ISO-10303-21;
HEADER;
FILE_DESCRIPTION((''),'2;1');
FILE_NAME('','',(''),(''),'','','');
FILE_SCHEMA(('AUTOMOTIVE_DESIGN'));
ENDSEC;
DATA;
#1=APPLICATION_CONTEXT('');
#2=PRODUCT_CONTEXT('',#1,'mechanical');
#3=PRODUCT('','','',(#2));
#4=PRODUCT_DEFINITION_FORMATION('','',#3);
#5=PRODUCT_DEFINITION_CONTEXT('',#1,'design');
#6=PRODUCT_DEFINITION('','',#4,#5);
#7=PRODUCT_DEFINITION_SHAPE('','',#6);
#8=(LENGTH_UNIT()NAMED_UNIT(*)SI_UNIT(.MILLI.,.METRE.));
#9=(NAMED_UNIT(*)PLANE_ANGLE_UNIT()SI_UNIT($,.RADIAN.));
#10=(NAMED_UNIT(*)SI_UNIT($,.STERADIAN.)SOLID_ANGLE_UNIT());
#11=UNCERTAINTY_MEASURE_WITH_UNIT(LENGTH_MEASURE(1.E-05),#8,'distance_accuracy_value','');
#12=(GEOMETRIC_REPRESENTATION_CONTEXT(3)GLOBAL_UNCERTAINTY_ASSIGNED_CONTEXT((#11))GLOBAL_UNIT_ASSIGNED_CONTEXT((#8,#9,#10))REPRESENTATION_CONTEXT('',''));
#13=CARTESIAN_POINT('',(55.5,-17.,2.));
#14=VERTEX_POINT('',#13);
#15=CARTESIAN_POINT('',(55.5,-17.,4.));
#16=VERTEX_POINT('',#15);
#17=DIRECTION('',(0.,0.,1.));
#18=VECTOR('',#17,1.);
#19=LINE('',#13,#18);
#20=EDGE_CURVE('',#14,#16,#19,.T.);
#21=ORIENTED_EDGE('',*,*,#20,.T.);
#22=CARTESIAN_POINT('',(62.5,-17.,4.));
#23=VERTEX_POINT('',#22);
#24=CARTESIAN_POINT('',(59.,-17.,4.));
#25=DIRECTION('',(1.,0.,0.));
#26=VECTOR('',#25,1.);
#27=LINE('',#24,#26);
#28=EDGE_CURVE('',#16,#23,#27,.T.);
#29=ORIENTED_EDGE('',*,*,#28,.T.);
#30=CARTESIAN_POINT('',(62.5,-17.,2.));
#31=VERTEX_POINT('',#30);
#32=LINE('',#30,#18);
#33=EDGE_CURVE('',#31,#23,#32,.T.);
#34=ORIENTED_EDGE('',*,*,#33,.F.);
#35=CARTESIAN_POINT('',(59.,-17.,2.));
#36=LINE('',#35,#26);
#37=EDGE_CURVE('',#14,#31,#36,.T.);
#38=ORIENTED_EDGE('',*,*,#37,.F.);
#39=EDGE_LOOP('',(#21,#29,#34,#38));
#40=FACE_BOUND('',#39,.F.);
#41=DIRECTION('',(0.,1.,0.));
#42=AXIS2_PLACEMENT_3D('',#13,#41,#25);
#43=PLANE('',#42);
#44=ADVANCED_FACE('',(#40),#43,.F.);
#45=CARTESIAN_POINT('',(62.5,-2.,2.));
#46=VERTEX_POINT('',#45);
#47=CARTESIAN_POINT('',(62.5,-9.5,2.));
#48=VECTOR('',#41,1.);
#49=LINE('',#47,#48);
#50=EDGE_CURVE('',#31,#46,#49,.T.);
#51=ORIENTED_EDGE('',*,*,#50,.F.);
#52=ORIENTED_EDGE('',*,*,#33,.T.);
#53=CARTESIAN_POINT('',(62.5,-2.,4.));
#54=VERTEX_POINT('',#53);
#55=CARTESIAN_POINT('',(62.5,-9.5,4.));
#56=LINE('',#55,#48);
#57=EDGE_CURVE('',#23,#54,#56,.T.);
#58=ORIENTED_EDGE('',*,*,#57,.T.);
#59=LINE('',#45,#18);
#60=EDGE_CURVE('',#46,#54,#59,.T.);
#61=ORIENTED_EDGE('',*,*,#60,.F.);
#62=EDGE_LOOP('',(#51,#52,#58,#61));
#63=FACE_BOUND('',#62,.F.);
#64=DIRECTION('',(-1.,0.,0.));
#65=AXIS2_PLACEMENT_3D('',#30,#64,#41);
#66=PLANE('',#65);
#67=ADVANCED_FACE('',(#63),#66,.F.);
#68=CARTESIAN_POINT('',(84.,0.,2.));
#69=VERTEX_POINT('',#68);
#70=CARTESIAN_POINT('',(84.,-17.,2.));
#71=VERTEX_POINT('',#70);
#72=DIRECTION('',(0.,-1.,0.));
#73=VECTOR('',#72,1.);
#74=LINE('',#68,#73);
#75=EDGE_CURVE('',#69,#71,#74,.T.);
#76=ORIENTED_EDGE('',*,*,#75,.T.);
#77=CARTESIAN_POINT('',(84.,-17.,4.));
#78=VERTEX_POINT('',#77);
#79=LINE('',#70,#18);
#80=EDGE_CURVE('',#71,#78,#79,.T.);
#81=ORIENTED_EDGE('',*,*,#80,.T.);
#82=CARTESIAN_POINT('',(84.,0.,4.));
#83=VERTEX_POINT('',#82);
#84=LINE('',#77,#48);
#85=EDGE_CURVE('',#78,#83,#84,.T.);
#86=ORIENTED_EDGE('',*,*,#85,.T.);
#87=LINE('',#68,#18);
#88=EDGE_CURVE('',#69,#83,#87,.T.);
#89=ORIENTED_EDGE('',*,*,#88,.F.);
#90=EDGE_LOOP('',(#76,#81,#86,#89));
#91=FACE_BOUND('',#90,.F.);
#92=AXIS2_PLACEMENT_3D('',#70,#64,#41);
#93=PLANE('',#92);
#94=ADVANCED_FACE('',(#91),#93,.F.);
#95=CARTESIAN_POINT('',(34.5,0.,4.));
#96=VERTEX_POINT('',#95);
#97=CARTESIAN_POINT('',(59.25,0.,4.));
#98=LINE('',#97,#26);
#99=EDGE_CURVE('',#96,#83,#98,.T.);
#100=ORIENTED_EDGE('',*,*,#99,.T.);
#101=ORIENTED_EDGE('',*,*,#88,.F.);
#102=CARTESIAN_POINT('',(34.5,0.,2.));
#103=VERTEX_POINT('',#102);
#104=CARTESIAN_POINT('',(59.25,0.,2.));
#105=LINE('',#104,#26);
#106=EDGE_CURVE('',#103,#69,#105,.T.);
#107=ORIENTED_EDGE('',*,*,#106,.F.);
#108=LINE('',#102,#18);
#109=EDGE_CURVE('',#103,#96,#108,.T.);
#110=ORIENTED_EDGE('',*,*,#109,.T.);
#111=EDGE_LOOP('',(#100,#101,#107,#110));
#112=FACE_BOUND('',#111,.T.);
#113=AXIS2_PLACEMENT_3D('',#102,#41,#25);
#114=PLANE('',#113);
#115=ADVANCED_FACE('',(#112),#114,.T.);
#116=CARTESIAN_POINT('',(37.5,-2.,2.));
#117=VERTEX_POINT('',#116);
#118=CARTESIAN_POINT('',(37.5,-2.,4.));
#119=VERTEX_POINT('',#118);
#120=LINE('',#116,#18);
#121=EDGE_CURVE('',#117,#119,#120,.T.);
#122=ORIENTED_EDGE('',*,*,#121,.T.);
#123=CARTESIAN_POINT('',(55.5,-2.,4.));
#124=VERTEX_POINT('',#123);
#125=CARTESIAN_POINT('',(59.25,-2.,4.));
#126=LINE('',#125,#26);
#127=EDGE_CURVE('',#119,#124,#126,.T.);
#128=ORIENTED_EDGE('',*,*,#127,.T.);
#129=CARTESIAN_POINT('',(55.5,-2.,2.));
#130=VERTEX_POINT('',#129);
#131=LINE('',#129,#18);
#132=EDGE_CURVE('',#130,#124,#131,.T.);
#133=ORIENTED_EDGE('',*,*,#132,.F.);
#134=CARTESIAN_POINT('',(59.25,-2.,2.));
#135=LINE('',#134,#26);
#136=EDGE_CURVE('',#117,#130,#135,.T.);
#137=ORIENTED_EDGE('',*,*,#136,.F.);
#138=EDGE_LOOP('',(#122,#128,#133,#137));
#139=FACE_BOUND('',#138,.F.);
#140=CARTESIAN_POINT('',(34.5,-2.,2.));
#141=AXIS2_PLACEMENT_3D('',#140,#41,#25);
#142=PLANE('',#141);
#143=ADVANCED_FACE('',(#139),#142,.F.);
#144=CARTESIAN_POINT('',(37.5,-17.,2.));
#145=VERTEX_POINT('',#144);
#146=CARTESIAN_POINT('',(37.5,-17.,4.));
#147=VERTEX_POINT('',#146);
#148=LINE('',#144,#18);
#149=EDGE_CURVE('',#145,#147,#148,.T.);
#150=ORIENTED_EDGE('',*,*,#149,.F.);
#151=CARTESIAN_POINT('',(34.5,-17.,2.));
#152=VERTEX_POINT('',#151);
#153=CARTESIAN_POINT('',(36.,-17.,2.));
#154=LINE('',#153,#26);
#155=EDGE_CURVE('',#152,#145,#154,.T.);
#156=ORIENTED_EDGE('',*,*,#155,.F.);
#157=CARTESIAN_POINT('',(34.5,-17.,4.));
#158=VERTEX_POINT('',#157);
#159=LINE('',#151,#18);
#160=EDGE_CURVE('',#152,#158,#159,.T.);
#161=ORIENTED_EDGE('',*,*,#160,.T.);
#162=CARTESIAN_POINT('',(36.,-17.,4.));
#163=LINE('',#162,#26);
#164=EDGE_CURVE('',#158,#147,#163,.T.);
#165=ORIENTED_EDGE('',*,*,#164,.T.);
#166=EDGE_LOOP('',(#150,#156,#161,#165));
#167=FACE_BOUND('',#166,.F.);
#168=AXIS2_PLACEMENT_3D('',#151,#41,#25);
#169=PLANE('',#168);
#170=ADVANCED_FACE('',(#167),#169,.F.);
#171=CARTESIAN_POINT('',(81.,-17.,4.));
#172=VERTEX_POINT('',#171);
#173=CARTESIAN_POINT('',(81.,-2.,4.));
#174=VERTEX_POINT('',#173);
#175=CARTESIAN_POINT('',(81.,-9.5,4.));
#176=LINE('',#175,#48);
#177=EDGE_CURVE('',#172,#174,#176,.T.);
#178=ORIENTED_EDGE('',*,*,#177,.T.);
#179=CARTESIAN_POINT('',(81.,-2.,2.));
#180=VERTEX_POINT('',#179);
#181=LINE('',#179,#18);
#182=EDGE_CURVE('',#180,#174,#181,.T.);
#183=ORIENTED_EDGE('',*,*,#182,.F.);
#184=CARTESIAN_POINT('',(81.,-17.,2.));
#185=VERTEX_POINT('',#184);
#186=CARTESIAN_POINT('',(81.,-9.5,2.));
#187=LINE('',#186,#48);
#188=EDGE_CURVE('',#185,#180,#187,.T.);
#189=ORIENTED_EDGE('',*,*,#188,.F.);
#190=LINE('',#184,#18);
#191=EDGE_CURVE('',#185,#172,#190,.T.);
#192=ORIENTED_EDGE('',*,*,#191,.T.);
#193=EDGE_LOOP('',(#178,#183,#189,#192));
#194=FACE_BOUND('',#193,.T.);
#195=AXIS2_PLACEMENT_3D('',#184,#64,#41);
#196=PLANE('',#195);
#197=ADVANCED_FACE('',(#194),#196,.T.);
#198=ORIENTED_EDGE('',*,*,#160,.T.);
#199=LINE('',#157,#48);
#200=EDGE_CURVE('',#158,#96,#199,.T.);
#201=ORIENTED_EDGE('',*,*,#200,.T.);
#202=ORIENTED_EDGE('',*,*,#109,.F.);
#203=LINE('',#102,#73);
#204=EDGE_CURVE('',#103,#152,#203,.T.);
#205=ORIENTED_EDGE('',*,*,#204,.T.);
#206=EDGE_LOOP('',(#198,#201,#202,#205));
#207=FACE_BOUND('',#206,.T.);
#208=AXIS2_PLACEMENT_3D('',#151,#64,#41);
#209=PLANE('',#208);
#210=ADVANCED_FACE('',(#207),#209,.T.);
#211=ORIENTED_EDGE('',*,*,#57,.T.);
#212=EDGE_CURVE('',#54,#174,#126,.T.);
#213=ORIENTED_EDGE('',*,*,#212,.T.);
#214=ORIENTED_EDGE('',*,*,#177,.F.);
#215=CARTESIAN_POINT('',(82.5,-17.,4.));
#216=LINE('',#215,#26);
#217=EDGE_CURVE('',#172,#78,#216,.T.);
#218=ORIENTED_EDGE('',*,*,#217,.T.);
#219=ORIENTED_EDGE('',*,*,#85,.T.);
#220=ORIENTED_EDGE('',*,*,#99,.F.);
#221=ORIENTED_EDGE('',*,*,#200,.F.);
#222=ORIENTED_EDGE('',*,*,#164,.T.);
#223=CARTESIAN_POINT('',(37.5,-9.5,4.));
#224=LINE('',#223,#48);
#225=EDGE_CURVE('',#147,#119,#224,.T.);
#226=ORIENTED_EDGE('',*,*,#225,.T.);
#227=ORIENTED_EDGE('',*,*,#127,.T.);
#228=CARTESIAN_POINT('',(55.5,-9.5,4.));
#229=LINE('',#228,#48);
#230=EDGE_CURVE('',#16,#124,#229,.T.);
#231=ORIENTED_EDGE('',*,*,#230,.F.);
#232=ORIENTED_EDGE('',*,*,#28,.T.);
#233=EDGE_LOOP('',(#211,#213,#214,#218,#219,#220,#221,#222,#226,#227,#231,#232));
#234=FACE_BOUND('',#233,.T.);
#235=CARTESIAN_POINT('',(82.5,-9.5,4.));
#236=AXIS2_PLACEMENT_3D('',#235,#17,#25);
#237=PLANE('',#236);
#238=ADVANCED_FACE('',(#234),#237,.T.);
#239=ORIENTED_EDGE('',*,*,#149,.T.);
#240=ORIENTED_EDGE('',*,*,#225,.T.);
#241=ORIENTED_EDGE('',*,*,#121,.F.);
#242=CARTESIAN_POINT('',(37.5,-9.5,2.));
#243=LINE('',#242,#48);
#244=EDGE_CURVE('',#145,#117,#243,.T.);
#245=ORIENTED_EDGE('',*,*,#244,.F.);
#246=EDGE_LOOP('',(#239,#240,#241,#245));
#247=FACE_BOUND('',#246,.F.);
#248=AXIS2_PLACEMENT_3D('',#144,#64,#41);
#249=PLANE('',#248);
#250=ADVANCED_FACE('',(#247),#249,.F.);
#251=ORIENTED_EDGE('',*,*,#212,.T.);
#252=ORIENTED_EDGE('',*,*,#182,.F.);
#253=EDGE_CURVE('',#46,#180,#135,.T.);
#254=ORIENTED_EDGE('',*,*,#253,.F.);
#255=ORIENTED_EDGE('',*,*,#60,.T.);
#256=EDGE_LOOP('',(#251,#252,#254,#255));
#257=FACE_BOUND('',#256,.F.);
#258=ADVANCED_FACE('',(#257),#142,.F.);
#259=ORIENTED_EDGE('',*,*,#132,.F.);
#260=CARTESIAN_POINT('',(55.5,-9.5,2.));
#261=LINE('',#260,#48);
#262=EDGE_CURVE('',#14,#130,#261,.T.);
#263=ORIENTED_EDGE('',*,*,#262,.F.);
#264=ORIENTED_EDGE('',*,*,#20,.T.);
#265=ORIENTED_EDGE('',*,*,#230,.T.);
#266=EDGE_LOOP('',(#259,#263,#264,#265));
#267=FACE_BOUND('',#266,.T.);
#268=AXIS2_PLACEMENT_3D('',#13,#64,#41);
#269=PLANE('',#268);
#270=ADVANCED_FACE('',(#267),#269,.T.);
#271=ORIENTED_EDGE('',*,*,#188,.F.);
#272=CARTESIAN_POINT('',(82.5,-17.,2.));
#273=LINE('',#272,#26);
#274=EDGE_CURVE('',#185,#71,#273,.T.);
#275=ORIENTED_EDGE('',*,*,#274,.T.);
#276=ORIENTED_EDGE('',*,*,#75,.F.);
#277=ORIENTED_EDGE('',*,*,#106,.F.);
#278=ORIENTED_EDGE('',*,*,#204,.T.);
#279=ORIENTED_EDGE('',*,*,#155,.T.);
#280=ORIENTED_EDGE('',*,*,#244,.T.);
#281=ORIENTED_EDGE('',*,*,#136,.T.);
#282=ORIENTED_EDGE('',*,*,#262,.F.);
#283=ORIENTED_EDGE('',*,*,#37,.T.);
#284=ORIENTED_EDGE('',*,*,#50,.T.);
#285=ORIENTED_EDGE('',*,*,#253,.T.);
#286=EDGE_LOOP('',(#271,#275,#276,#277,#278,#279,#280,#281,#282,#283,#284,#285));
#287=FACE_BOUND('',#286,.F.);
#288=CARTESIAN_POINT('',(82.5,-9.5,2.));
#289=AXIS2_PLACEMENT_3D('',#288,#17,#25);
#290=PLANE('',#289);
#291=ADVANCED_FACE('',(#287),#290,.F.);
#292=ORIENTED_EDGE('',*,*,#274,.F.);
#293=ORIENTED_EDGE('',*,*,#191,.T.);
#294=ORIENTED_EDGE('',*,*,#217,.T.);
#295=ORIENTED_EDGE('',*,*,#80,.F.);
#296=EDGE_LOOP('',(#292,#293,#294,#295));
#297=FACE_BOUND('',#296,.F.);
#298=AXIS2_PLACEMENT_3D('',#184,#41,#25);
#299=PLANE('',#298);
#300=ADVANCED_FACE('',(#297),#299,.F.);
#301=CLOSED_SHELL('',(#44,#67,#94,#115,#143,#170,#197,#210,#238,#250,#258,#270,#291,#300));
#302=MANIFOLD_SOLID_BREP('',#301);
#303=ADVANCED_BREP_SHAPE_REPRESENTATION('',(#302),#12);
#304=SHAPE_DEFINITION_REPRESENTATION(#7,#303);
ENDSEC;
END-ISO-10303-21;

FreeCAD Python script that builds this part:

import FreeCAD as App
import Part
import Sketcher
from FreeCAD import Vector


def add_polygon(sketch, points):
    """Adds a closed chain of lines whose ends are joined by coincident constraints."""
    first, n = sketch.GeometryCount, len(points)
    for a, b in zip(points, points[1:] + points[:1]):
        sketch.addGeometry(Part.LineSegment(App.Vector(*a, 0), App.Vector(*b, 0)), False)
    for i in range(n):
        sketch.addConstraint(Sketcher.Constraint("Coincident", first + i, 2, first + (i + 1) % n, 1))

doc = App.newDocument("Part")
body = doc.addObject("PartDesign::Body", "Body")

sketch1 = body.newObject("Sketcher::SketchObject", "Sketch")
sketch1.AttachmentSupport = (doc.getObject("XY_Plane"), [""])
sketch1.MapMode = "FlatFace"
sketch1.AttachmentOffset = App.Placement(Vector(0, 0, 2), App.Rotation())
add_polygon(sketch1, [(34.5, 0), (34.5, -2), (84, -2), (84, 0)])
sketch1.addConstraint([
    Sketcher.Constraint("Vertical", 0),
    Sketcher.Constraint("Horizontal", 1),
    Sketcher.Constraint("Vertical", 2),
    Sketcher.Constraint("Horizontal", 3),
    Sketcher.Constraint("PointOnObject", 2, 2, -1),
    Sketcher.Constraint("DistanceY", 0, 2, 0, 1, 2.0),
    Sketcher.Constraint("DistanceX", 1, 1, 1, 2, 49.5),
    Sketcher.Constraint("DistanceX", -1, 1, 1, 2, 84.0),
])
pad1 = body.newObject("PartDesign::Pad", "Pad")
pad1.Profile = sketch1
pad1.Length = 2
body2 = doc.addObject("PartDesign::Body", "Body001")

sketch2 = body2.newObject("Sketcher::SketchObject", "Sketch001")
sketch2.AttachmentSupport = (doc.getObject("XY_Plane001"), [""])
sketch2.MapMode = "FlatFace"
sketch2.AttachmentOffset = App.Placement(Vector(0, 0, 2), App.Rotation())
add_polygon(sketch2, [(34.5, -2), (34.5, -17), (37.5, -17), (37.5, -2)])
sketch2.addConstraint([
    Sketcher.Constraint("Vertical", 0),
    Sketcher.Constraint("Horizontal", 1),
    Sketcher.Constraint("Vertical", 2),
    Sketcher.Constraint("Horizontal", 3),
    Sketcher.Constraint("DistanceX", 1, 1, 1, 2, 3.0),
    Sketcher.Constraint("DistanceY", 0, 2, 0, 1, 15.0),
    Sketcher.Constraint("DistanceY", 0, 2, -1, 1, 17.0),
    Sketcher.Constraint("DistanceX", -1, 1, 0, 2, 34.5),
])
pad2 = body2.newObject("PartDesign::Pad", "Pad001")
pad2.Profile = sketch2
pad2.Length = 2
body3 = doc.addObject("PartDesign::Body", "Body002")

sketch3 = body3.newObject("Sketcher::SketchObject", "Sketch002")
sketch3.AttachmentSupport = (doc.getObject("XY_Plane002"), [""])
sketch3.MapMode = "FlatFace"
sketch3.AttachmentOffset = App.Placement(Vector(0, 0, 2), App.Rotation())
add_polygon(sketch3, [(81, -2), (81, -17), (84, -17), (84, -2)])
sketch3.addConstraint([
    Sketcher.Constraint("Vertical", 0),
    Sketcher.Constraint("Horizontal", 1),
    Sketcher.Constraint("Vertical", 2),
    Sketcher.Constraint("Horizontal", 3),
    Sketcher.Constraint("DistanceX", 1, 1, 1, 2, 3.0),
    Sketcher.Constraint("DistanceY", 0, 2, 0, 1, 15.0),
    Sketcher.Constraint("DistanceX", -1, 1, 0, 2, 81.0),
    Sketcher.Constraint("DistanceY", 0, 2, -1, 1, 17.0),
])
pad3 = body3.newObject("PartDesign::Pad", "Pad002")
pad3.Profile = sketch3
pad3.Length = 2
body4 = doc.addObject("PartDesign::Body", "Body003")

sketch4 = body4.newObject("Sketcher::SketchObject", "Sketch003")
sketch4.AttachmentSupport = (doc.getObject("XY_Plane003"), [""])
sketch4.MapMode = "FlatFace"
sketch4.AttachmentOffset = App.Placement(Vector(0, 0, 2), App.Rotation())
add_polygon(sketch4, [(56, -2), (56, -17), (62, -17), (62, -2)])
sketch4.addConstraint([
    Sketcher.Constraint("Vertical", 0),
    Sketcher.Constraint("Horizontal", 1),
    Sketcher.Constraint("Vertical", 2),
    Sketcher.Constraint("Horizontal", 3),
    Sketcher.Constraint("DistanceX", 1, 1, 1, 2, 7.0),
    Sketcher.Constraint("DistanceY", 0, 2, 0, 1, 15.0),
    Sketcher.Constraint("DistanceY", 0, 2, -1, 1, 17.0),
    Sketcher.Constraint("DistanceX", -1, 1, 0, 2, 55.5),
])
pad4 = body4.newObject("PartDesign::Pad", "Pad003")
pad4.Profile = sketch4
pad4.Length = 2
doc.recompute()

boolean = body4.newObject("PartDesign::Boolean", "Boolean")
boolean.Type = "Fuse"
boolean.addObjects([body])
doc.recompute()

boolean2 = body4.newObject("PartDesign::Boolean", "Boolean001")
boolean2.Type = "Fuse"
boolean2.addObjects([body2])
doc.recompute()

boolean3 = body4.newObject("PartDesign::Boolean", "Boolean002")
boolean3.Type = "Fuse"
boolean3.addObjects([body3])

doc.recompute()
